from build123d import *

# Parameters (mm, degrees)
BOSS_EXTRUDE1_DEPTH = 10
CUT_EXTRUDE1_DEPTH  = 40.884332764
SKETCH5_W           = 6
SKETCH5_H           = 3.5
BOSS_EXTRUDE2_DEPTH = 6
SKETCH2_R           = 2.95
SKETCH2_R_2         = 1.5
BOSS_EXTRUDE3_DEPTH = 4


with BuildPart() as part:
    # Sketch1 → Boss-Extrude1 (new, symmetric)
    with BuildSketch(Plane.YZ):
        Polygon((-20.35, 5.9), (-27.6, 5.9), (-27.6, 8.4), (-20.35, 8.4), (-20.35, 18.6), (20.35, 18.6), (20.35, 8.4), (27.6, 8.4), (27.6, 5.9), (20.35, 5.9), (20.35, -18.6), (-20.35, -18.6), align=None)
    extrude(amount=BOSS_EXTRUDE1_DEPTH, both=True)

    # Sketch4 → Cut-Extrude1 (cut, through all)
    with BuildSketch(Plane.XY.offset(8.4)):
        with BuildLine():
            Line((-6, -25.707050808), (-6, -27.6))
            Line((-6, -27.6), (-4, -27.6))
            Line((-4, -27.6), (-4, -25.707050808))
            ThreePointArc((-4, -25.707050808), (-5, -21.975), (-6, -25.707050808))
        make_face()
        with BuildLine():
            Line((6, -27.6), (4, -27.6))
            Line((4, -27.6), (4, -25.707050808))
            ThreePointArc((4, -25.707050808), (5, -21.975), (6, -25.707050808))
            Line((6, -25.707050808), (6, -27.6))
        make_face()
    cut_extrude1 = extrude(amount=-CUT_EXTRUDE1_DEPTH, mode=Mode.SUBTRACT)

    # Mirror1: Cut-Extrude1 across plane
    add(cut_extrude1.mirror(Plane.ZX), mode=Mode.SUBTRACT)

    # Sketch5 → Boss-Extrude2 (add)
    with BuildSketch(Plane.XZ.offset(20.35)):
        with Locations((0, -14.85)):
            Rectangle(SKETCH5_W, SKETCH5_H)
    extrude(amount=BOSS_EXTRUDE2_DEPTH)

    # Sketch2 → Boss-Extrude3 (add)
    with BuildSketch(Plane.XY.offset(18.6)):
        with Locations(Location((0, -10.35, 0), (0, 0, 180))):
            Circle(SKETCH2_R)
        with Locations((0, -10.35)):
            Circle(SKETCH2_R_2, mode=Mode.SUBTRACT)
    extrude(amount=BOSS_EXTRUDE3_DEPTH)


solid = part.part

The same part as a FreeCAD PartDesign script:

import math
import FreeCAD as App
import Part
import Sketcher
from FreeCAD import Vector

doc = App.newDocument("Part")
body = doc.addObject("PartDesign::Body", "Body")

# Sketch on YZ plane
sketch1 = body.newObject("Sketcher::SketchObject", "Sketch")
sketch1.AttachmentSupport = (doc.getObject("YZ_Plane"), [""])
sketch1.MapMode = "FlatFace"
sketch1.addGeometry([
    Part.LineSegment(Vector(-27.6, 5.9, 0), Vector(-20.4, 5.9, 0)),  # 0
    Part.LineSegment(Vector(-20.4, 5.9, 0), Vector(-20.4, -18.6, 0)),  # 1
    Part.LineSegment(Vector(-20.4, -18.6, 0), Vector(20.4, -18.6, 0)),  # 2
    Part.LineSegment(Vector(20.4, -18.6, 0), Vector(20.4, 5.9, 0)),  # 3
    Part.LineSegment(Vector(20.4, 5.9, 0), Vector(27.6, 5.9, 0)),  # 4
    Part.LineSegment(Vector(27.6, 5.9, 0), Vector(27.6, 8.4, 0)),  # 5
    Part.LineSegment(Vector(27.6, 8.4, 0), Vector(20.4, 8.4, 0)),  # 6
    Part.LineSegment(Vector(20.4, 8.4, 0), Vector(20.4, 18.6, 0)),  # 7
    Part.LineSegment(Vector(20.4, 18.6, 0), Vector(-20.4, 18.6, 0)),  # 8
    Part.LineSegment(Vector(-20.4, 18.6, 0), Vector(-20.4, 8.4, 0)),  # 9
    Part.LineSegment(Vector(-20.4, 8.4, 0), Vector(-27.6, 8.4, 0)),  # 10
    Part.LineSegment(Vector(-27.6, 8.4, 0), Vector(-27.6, 5.9, 0)),  # 11
], False)
sketch1.addConstraint([
    Sketcher.Constraint("Coincident", 0, 2, 1, 1),
    Sketcher.Constraint("Coincident", 1, 2, 2, 1),
    Sketcher.Constraint("Coincident", 2, 2, 3, 1),
    Sketcher.Constraint("Coincident", 3, 2, 4, 1),
    Sketcher.Constraint("Coincident", 4, 2, 5, 1),
    Sketcher.Constraint("Coincident", 5, 2, 6, 1),
    Sketcher.Constraint("Coincident", 6, 2, 7, 1),
    Sketcher.Constraint("Coincident", 7, 2, 8, 1),
    Sketcher.Constraint("Coincident", 8, 2, 9, 1),
    Sketcher.Constraint("Coincident", 9, 2, 10, 1),
    Sketcher.Constraint("Coincident", 10, 2, 11, 1),
    Sketcher.Constraint("Coincident", 11, 2, 0, 1),
    Sketcher.Constraint("Horizontal", 0),
    Sketcher.Constraint("Vertical", 1),
    Sketcher.Constraint("Horizontal", 2),
    Sketcher.Constraint("Vertical", 3),
    Sketcher.Constraint("Horizontal", 4),
    Sketcher.Constraint("Vertical", 5),
    Sketcher.Constraint("Horizontal", 6),
    Sketcher.Constraint("Vertical", 7),
    Sketcher.Constraint("Horizontal", 8),
    Sketcher.Constraint("Vertical", 9),
    Sketcher.Constraint("Horizontal", 10),
    Sketcher.Constraint("Vertical", 11),
    Sketcher.Constraint("Symmetric", 1, 2, 7, 2, -1, 1),
    Sketcher.Constraint("Symmetric", 0, 2, 3, 2, -2),
    Sketcher.Constraint("Symmetric", 6, 2, 9, 2, -2),
    Sketcher.Constraint("Equal", 0, 4),
    Sketcher.Constraint("DistanceX", 2, 1, 2, 2, 40.7),
    Sketcher.Constraint("DistanceY", 1, 2, 1, 1, 24.5),
    Sketcher.Constraint("DistanceY", 5, 1, 5, 2, 2.5),
    Sketcher.Constraint("DistanceY", 7, 1, 7, 2, 10.2),
    Sketcher.Constraint("DistanceX", 0, 1, 0, 2, 7.25),
])
pad1 = body.newObject("PartDesign::Pad", "Pad")
pad1.Profile = sketch1
pad1.Length = 20
pad1.Midplane = True

# Sketch on XY plane
sketch2 = body.newObject("Sketcher::SketchObject", "Sketch001")
sketch2.AttachmentSupport = (doc.getObject("XY_Plane"), [""])
sketch2.MapMode = "FlatFace"
sketch2.AttachmentOffset = App.Placement(Vector(0, 0, 8.4), App.Rotation())
sketch2.addGeometry([
    Part.LineSegment(Vector(-6, -25.7, 0), Vector(-6, -27.6, 0)),  # 0
    Part.LineSegment(Vector(-6, -27.6, 0), Vector(-4, -27.6, 0)),  # 1
    Part.LineSegment(Vector(-4, -27.6, 0), Vector(-4, -25.7, 0)),  # 2
    Part.ArcOfCircle(Part.Circle(Vector(-5, -24, 0), Vector(0, 0, 1), 2), math.radians(-60), math.radians(240)),  # 3
    Part.LineSegment(Vector(4, -27.6, 0), Vector(6, -27.6, 0)),  # 4
    Part.LineSegment(Vector(6, -27.6, 0), Vector(6, -25.7, 0)),  # 5
    Part.ArcOfCircle(Part.Circle(Vector(5, -24, 0), Vector(0, 0, 1), 2), math.radians(-60), math.radians(240)),  # 6
    Part.LineSegment(Vector(4, -25.7, 0), Vector(4, -27.6, 0)),  # 7
], False)
sketch2.addConstraint([
    Sketcher.Constraint("Coincident", 0, 2, 1, 1),
    Sketcher.Constraint("Coincident", 1, 2, 2, 1),
    Sketcher.Constraint("Coincident", 2, 2, 3, 1),
    Sketcher.Constraint("Coincident", 3, 2, 0, 1),
    Sketcher.Constraint("Coincident", 4, 2, 5, 1),
    Sketcher.Constraint("Coincident", 5, 2, 6, 1),
    Sketcher.Constraint("Coincident", 6, 2, 7, 1),
    Sketcher.Constraint("Coincident", 7, 2, 4, 1),
    Sketcher.Constraint("Vertical", 0),
    Sketcher.Constraint("Horizontal", 1),
    Sketcher.Constraint("Vertical", 2),
    Sketcher.Constraint("Horizontal", 4),
    Sketcher.Constraint("Vertical", 5),
    Sketcher.Constraint("Vertical", 7),
    Sketcher.Constraint("Equal", 3, 6),
    Sketcher.Constraint("Symmetric", 3, 3, 6, 3, -2),
    Sketcher.Constraint("Symmetric", 0, 2, 4, 2, -2),
    Sketcher.Constraint("Horizontal", 2, 2, 3, 2),
    Sketcher.Constraint("Horizontal", 5, 2, 6, 2),
    Sketcher.Constraint("Radius", 3, 2.0),
    Sketcher.Constraint("DistanceX", 1, 1, 1, 2, 2.0),
    Sketcher.Constraint("DistanceX", 3, 3, -1, 1, 5.0),
    Sketcher.Constraint("DistanceY", 0, 2, -1, 1, 27.6),
    Sketcher.Constraint("DistanceY", 3, 3, -1, 1, 23.975),
])
pocket1 = body.newObject("PartDesign::Pocket", "Pocket")
pocket1.Profile = sketch2
pocket1.Type = "ThroughAll"
doc.recompute()

mirrored = body.newObject("PartDesign::Mirrored", "Mirrored")
mirrored.Originals = [pocket1]
mirrored.MirrorPlane = (doc.getObject("XZ_Plane"), [""])
body.Tip = mirrored

# Sketch on XZ plane
sketch3 = body.newObject("Sketcher::SketchObject", "Sketch002")
sketch3.AttachmentSupport = (doc.getObject("XZ_Plane"), [""])
sketch3.MapMode = "FlatFace"
sketch3.AttachmentOffset = App.Placement(Vector(0, 0, 20.35), App.Rotation())
sketch3.addGeometry([
    Part.LineSegment(Vector(-3, -13.1, 0), Vector(-3, -16.6, 0)),
    Part.LineSegment(Vector(-3, -16.6, 0), Vector(3, -16.6, 0)),
    Part.LineSegment(Vector(3, -16.6, 0), Vector(3, -13.1, 0)),
    Part.LineSegment(Vector(3, -13.1, 0), Vector(-3, -13.1, 0)),
], False)
sketch3.addConstraint([
    Sketcher.Constraint("Coincident", 0, 2, 1, 1),
    Sketcher.Constraint("Coincident", 1, 2, 2, 1),
    Sketcher.Constraint("Coincident", 2, 2, 3, 1),
    Sketcher.Constraint("Coincident", 3, 2, 0, 1),
    Sketcher.Constraint("Vertical", 0),
    Sketcher.Constraint("Horizontal", 1),
    Sketcher.Constraint("Vertical", 2),
    Sketcher.Constraint("Horizontal", 3),
    Sketcher.Constraint("DistanceX", 1, 1, 1, 2, 6.0),
    Sketcher.Constraint("DistanceY", 0, 2, 0, 1, 3.5),
    Sketcher.Constraint("DistanceX", 0, 2, -1, 1, 3.0),
    Sketcher.Constraint("DistanceY", 0, 2, -1, 1, 16.6),
])
pad2 = body.newObject("PartDesign::Pad", "Pad001")
pad2.Profile = sketch3
pad2.Length = 6

# Sketch on XY plane
sketch4 = body.newObject("Sketcher::SketchObject", "Sketch003")
sketch4.AttachmentSupport = (doc.getObject("XY_Plane"), [""])
sketch4.MapMode = "FlatFace"
sketch4.AttachmentOffset = App.Placement(Vector(0, 0, 18.6), App.Rotation())
sketch4.addGeometry([
    Part.Circle(Vector(0, -10.3, 0), Vector(0, 0, 1), 3),
    Part.Circle(Vector(0, -10.3, 0), Vector(0, 0, 1), 1.5),
], False)
sketch4.addConstraint([
    Sketcher.Constraint("Coincident", 1, 3, 0, 3),
    Sketcher.Constraint("PointOnObject", 0, 3, -2),
    Sketcher.Constraint("Diameter", 1, 3.0),
    Sketcher.Constraint("Diameter", 0, 5.9),
    Sketcher.Constraint("DistanceY", 0, 3, -1, 1, 10.35),
])
pad3 = body.newObject("PartDesign::Pad", "Pad002")
pad3.Profile = sketch4
pad3.Length = 4

doc.recompute()
